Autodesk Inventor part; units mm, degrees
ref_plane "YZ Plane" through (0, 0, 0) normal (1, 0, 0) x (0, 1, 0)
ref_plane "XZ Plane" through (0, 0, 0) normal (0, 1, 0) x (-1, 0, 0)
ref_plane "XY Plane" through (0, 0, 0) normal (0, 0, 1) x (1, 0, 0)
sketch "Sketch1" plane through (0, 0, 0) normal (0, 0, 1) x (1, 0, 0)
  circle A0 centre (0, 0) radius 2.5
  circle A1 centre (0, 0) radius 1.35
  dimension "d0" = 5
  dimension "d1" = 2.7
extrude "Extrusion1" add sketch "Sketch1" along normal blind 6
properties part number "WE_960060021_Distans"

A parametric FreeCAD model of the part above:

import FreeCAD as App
import Part
import Sketcher

doc = App.newDocument("Part")
body = doc.addObject("PartDesign::Body", "Body")

sketch1 = body.newObject("Sketcher::SketchObject", "Sketch")
sketch1.AttachmentSupport = (doc.getObject("XY_Plane"), [""])
sketch1.MapMode = "FlatFace"
sketch1.addGeometry([
    Part.Circle(App.Vector(0, 0, 0), App.Vector(0, 0, 1), 2.5),
    Part.Circle(App.Vector(0, 0, 0), App.Vector(0, 0, 1), 1.35),
], False)
sketch1.addConstraint([
    Sketcher.Constraint("Coincident", 0, 3, -1, 1),
    Sketcher.Constraint("Coincident", 1, 3, -1, 1),
    Sketcher.Constraint("Diameter", 0, 5.0),
    Sketcher.Constraint("Diameter", 1, 2.7),
])
pad1 = body.newObject("PartDesign::Pad", "Pad")
pad1.Profile = sketch1
pad1.Length = 6

doc.recompute()
